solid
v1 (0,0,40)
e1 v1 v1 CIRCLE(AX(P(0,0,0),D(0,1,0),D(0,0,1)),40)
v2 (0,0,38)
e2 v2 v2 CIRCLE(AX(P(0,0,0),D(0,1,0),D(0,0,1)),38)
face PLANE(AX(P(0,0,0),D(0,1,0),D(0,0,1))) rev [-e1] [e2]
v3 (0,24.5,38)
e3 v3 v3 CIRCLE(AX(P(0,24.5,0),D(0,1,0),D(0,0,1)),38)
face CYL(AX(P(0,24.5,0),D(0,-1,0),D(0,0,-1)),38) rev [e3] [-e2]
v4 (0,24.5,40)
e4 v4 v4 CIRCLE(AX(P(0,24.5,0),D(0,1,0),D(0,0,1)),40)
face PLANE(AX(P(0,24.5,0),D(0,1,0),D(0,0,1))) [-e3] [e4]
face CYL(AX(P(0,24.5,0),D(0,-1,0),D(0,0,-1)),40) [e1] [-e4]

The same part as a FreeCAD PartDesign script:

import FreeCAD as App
import Part
import Sketcher

V = App.Vector

doc = App.newDocument("Part")
params = doc.addObject("Spreadsheet::Sheet", "Params")
for row, (alias, value) in enumerate([
    ("sketch1_diameter", "80 mm"),
    ("sketch1_diameter2", "76 mm"),
    ("pad1_length", "24.5 mm"),
], start=1):
    params.set(f"A{row}", alias)
    params.set(f"B{row}", "=" + value)
    params.setAlias(f"B{row}", alias)

body = doc.addObject("PartDesign::Body", "Body")

sketch1 = doc.addObject("Sketcher::SketchObject", "Sketch")
body.addObject(sketch1)
sketch1.AttachmentSupport = (doc.XZ_Plane, [""])
sketch1.MapMode = "FlatFace"
sketch1.addGeometry(Part.Circle(V(0, 0, 0), V(0, 0, 1), 40), False)
sketch1.addGeometry(Part.Circle(V(0, 0, 0), V(0, 0, 1), 38), False)
sketch1.addConstraint(Sketcher.Constraint("Coincident", 0, 3, -1, 1))
sketch1.addConstraint(Sketcher.Constraint("Coincident", 1, 3, -1, 1))
sketch1.addConstraint(Sketcher.Constraint("Diameter", 0, 80.0))
sketch1.addConstraint(Sketcher.Constraint("Diameter", 1, 76.0))
sketch1.setExpression("Constraints[2]", "Params.sketch1_diameter")
sketch1.setExpression("Constraints[3]", "Params.sketch1_diameter2")
pad1 = doc.addObject("PartDesign::Pad", "Pad")
body.addObject(pad1)
pad1.Profile = sketch1
pad1.setExpression("Length", "Params.pad1_length")
pad1.Reversed = True

doc.recompute()
